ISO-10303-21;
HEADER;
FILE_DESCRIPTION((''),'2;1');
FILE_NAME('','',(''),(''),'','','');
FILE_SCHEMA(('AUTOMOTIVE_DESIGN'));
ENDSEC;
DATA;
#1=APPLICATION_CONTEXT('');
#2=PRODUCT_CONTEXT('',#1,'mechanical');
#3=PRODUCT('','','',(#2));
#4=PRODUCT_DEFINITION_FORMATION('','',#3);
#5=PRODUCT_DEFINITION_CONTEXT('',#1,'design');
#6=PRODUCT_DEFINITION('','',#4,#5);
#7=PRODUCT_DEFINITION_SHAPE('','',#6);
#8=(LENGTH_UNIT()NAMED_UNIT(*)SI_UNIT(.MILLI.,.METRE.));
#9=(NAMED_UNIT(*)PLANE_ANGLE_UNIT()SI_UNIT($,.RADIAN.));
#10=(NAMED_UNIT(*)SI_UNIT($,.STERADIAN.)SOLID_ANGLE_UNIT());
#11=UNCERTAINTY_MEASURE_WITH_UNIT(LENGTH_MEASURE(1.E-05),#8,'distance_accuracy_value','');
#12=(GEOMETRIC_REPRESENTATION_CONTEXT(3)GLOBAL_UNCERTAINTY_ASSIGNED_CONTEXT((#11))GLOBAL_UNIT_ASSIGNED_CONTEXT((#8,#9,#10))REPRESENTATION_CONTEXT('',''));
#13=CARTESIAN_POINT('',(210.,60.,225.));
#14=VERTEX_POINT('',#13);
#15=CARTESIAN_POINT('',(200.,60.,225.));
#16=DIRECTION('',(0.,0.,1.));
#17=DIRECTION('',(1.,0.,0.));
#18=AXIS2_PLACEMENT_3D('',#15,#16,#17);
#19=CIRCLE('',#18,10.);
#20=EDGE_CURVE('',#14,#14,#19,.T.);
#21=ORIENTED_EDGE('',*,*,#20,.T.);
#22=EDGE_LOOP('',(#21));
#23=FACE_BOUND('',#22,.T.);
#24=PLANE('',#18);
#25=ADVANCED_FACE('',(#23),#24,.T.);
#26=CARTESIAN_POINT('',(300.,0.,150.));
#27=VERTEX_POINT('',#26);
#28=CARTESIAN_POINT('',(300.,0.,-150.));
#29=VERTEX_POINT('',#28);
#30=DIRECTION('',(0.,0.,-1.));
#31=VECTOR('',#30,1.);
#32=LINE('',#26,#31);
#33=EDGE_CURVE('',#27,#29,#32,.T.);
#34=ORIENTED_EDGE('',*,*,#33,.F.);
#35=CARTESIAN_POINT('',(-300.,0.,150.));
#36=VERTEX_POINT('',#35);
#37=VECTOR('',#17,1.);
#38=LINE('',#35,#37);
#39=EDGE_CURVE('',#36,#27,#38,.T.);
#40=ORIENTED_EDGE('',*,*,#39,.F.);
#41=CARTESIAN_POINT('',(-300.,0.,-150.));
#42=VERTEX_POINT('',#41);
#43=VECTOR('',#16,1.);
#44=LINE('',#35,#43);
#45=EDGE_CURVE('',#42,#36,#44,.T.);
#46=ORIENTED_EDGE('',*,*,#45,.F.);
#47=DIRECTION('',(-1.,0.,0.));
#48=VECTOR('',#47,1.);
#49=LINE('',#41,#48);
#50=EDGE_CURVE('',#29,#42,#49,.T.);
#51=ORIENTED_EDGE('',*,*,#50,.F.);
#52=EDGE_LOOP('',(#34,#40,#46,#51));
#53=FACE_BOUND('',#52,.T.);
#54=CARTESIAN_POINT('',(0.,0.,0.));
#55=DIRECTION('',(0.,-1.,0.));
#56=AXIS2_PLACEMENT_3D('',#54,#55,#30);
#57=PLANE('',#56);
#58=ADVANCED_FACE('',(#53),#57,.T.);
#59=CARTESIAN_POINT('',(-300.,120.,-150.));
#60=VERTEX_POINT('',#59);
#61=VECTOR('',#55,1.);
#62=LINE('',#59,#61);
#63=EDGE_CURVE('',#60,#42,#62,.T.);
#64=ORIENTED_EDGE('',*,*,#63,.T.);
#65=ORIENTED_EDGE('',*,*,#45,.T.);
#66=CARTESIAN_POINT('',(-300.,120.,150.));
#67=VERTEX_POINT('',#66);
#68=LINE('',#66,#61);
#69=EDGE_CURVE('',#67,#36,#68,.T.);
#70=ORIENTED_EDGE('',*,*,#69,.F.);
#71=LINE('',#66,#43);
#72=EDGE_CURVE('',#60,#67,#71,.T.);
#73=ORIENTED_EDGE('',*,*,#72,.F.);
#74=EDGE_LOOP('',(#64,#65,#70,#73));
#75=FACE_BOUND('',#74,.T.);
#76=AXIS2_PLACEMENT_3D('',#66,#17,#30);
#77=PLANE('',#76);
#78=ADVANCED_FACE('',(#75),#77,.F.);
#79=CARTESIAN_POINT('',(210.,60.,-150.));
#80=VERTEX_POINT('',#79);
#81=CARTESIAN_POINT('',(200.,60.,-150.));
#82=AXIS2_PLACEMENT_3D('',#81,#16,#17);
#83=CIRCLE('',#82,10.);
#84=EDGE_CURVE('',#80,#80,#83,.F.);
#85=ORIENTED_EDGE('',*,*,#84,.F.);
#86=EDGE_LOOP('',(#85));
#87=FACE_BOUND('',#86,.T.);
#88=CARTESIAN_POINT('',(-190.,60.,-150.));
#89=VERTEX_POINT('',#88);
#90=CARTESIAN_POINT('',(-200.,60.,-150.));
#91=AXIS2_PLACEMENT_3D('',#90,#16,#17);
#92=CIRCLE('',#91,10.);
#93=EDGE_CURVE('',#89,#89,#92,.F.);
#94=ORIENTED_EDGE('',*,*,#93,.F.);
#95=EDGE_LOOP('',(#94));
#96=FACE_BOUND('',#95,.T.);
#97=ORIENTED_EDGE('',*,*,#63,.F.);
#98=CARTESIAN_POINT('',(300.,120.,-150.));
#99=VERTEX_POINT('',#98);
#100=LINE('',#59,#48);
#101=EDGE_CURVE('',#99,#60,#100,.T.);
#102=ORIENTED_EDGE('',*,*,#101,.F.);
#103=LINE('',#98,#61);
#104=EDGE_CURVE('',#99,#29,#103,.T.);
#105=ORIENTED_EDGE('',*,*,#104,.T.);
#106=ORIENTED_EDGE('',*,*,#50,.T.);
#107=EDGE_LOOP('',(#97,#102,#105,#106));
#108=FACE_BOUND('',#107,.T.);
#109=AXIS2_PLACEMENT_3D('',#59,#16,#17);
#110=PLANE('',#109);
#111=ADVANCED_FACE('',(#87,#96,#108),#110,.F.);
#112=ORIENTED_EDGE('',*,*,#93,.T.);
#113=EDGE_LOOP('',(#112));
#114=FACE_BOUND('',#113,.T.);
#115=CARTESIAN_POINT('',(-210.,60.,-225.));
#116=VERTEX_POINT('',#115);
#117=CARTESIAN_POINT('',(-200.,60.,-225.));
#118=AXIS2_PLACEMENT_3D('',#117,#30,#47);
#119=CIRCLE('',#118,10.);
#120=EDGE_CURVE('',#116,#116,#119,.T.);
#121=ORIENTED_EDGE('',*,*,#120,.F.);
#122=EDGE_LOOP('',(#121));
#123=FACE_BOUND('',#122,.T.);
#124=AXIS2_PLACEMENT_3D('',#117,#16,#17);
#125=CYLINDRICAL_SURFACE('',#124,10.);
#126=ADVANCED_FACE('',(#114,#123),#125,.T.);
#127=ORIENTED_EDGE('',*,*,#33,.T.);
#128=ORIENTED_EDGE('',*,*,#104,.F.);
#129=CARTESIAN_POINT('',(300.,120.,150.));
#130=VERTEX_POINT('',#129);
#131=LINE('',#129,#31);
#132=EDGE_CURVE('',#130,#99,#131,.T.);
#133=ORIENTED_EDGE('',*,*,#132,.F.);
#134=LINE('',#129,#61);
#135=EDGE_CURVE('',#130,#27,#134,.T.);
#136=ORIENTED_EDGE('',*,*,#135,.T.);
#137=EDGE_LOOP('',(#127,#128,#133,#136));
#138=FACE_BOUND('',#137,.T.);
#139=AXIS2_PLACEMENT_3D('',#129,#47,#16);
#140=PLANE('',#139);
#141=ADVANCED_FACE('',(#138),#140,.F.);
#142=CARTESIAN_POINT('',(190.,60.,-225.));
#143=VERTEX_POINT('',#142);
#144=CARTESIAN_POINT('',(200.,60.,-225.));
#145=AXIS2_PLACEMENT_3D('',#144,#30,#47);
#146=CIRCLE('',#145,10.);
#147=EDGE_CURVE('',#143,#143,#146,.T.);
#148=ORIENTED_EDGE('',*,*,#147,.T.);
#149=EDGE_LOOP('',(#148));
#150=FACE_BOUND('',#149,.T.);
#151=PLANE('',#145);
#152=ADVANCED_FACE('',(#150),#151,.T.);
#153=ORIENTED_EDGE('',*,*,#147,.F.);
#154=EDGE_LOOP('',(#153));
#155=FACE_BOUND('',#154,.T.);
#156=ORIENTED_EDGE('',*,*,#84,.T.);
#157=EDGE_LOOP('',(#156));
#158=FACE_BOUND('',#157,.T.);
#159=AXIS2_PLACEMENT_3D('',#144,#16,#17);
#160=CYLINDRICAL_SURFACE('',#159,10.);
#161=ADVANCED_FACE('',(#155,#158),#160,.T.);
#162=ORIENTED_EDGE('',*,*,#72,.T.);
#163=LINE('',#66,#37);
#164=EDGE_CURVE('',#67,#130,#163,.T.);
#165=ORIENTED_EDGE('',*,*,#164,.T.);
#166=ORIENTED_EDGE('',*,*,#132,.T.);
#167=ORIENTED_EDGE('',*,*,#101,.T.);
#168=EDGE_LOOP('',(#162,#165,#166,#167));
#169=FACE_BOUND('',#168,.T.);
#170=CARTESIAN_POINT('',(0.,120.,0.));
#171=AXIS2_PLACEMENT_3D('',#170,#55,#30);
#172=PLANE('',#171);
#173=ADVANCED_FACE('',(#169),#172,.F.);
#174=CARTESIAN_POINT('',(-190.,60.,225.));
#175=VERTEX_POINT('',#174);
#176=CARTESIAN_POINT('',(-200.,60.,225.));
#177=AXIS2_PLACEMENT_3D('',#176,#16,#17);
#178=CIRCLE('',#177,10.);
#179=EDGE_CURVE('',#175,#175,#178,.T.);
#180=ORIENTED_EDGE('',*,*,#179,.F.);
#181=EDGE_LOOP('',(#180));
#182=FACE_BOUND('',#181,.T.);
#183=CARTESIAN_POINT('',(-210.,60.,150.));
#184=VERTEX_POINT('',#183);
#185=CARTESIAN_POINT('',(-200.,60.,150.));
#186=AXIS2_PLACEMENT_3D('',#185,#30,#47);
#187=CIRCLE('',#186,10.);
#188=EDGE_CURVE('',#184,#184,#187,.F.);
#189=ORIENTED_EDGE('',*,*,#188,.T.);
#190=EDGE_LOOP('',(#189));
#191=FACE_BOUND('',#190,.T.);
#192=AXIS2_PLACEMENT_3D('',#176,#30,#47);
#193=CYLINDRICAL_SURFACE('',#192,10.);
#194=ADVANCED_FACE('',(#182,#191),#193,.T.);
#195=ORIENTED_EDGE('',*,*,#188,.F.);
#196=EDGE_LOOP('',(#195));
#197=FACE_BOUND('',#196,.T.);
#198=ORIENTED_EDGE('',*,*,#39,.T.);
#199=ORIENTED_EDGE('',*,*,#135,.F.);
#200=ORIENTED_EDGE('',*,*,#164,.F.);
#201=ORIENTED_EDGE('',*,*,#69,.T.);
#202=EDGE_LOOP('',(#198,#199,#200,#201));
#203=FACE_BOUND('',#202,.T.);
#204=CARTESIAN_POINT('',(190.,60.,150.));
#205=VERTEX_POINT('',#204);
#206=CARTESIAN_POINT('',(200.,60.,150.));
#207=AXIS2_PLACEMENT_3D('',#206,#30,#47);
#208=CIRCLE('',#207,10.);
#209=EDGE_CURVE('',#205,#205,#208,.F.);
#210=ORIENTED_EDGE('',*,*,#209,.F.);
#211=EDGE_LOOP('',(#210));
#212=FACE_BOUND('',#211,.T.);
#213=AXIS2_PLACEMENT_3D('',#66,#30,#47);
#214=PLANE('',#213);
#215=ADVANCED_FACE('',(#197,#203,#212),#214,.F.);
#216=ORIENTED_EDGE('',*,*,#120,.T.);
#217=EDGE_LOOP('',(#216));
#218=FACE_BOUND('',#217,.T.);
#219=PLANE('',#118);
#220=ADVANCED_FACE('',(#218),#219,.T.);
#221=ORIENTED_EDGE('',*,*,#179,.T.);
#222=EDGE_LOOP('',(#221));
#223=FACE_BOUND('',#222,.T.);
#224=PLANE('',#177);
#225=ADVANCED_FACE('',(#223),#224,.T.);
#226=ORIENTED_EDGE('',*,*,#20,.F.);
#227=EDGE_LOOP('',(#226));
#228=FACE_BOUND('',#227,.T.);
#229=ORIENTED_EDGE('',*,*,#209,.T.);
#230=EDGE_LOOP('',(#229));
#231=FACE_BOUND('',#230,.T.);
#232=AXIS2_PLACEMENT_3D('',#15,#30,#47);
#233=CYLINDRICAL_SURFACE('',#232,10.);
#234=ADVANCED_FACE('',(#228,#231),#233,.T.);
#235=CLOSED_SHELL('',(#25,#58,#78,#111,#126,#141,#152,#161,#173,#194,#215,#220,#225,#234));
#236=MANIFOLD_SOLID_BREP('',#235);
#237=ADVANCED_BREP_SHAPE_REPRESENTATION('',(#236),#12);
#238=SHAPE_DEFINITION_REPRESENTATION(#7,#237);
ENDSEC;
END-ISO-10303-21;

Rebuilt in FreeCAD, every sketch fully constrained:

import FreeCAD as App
import Part
import Sketcher
from FreeCAD import Vector
Q = App.Units.Quantity

doc = App.newDocument("Part")
params = doc.addObject("Spreadsheet::Sheet", "Params")
for row, (alias, value) in enumerate([
    ("sketch1_width", "600 mm"),
    ("sketch1_height", "300 mm"),
    ("pad1_length", "120 mm"),
    ("sketch2_diameter", "20 mm"),
    ("pad2_length", "75 mm"),
    ("sketch3_diameter", "20 mm"),
    ("pad3_length", "75 mm"),
], start=1):
    params.set(f"A{row}", alias)
    params.set(f"B{row}", "=" + value)
    params.setAlias(f"B{row}", alias)

body = doc.addObject("PartDesign::Body", "Body")

# Sketch on XZ plane
sketch1 = body.newObject("Sketcher::SketchObject", "Sketch")
sketch1.AttachmentSupport = (doc.getObject("XZ_Plane"), [""])
sketch1.MapMode = "FlatFace"
sketch1.addGeometry(Part.LineSegment(Vector(-300, -150, 0), Vector(-300, 150, 0)), False)
sketch1.addGeometry(Part.LineSegment(Vector(-300, 150, 0), Vector(300, 150, 0)), False)
sketch1.addGeometry(Part.LineSegment(Vector(300, 150, 0), Vector(300, -150, 0)), False)
sketch1.addGeometry(Part.LineSegment(Vector(300, -150, 0), Vector(-300, -150, 0)), False)
sketch1.addConstraint(Sketcher.Constraint("Coincident", 0, 2, 1, 1))
sketch1.addConstraint(Sketcher.Constraint("Coincident", 1, 2, 2, 1))
sketch1.addConstraint(Sketcher.Constraint("Coincident", 2, 2, 3, 1))
sketch1.addConstraint(Sketcher.Constraint("Coincident", 3, 2, 0, 1))
sketch1.addConstraint(Sketcher.Constraint("Vertical", 0))
sketch1.addConstraint(Sketcher.Constraint("Horizontal", 1))
sketch1.addConstraint(Sketcher.Constraint("Vertical", 2))
sketch1.addConstraint(Sketcher.Constraint("Horizontal", 3))
sketch1.addConstraint(Sketcher.Constraint("Symmetric", 0, 2, 2, 2, -1, 1))
sketch1.addConstraint(Sketcher.Constraint("DistanceX", 1, 1, 1, 2, Q("600 mm")))
sketch1.addConstraint(Sketcher.Constraint("DistanceY", 0, 1, 0, 2, Q("300 mm")))
sketch1.setExpression("Constraints[9]", "Params.sketch1_width")
sketch1.setExpression("Constraints[10]", "Params.sketch1_height")
pad1 = body.newObject("PartDesign::Pad", "Pad")
pad1.Profile = sketch1
pad1.setExpression("Length", "Params.pad1_length")
pad1.Reversed = True

# Sketch on XY plane
sketch2 = body.newObject("Sketcher::SketchObject", "Sketch001")
sketch2.AttachmentSupport = (doc.getObject("XY_Plane"), [""])
sketch2.MapMode = "FlatFace"
sketch2.AttachmentOffset = App.Placement(Vector(0, 0, 150), App.Rotation())
sketch2.addGeometry(Part.Circle(Vector(-200, 60, 0), Vector(0, 0, 1), 10), False)
sketch2.addGeometry(Part.Circle(Vector(200, 60, 0), Vector(0, 0, 1), 10), False)
sketch2.addConstraint(Sketcher.Constraint("Equal", 0, 1))
sketch2.addConstraint(Sketcher.Constraint("Symmetric", 0, 3, 1, 3, -2))
sketch2.addConstraint(Sketcher.Constraint("Diameter", 0, Q("20 mm")))
sketch2.addConstraint(Sketcher.Constraint("DistanceX", 0, 3, -1, 1, Q("200 mm")))
sketch2.addConstraint(Sketcher.Constraint("DistanceY", -1, 1, 0, 3, Q("60 mm")))
sketch2.setExpression("Constraints[2]", "Params.sketch2_diameter")
pad2 = body.newObject("PartDesign::Pad", "Pad001")
pad2.Profile = sketch2
pad2.setExpression("Length", "Params.pad2_length")

# Sketch on XY plane
sketch3 = body.newObject("Sketcher::SketchObject", "Sketch002")
sketch3.AttachmentSupport = (doc.getObject("XY_Plane"), [""])
sketch3.MapMode = "FlatFace"
sketch3.AttachmentOffset = App.Placement(Vector(0, 0, -225), App.Rotation())
sketch3.addGeometry(Part.Circle(Vector(200, 60, 0), Vector(0, 0, 1), 10), False)
sketch3.addGeometry(Part.Circle(Vector(-200, 60, 0), Vector(0, 0, 1), 10), False)
sketch3.addConstraint(Sketcher.Constraint("Equal", 0, 1))
sketch3.addConstraint(Sketcher.Constraint("Symmetric", 0, 3, 1, 3, -2))
sketch3.addConstraint(Sketcher.Constraint("Diameter", 0, Q("20 mm")))
sketch3.addConstraint(Sketcher.Constraint("DistanceX", -1, 1, 0, 3, Q("200 mm")))
sketch3.addConstraint(Sketcher.Constraint("DistanceY", -1, 1, 0, 3, Q("60 mm")))
sketch3.setExpression("Constraints[2]", "Params.sketch3_diameter")
pad3 = body.newObject("PartDesign::Pad", "Pad002")
pad3.Profile = sketch3
pad3.setExpression("Length", "Params.pad3_length")

doc.recompute()
